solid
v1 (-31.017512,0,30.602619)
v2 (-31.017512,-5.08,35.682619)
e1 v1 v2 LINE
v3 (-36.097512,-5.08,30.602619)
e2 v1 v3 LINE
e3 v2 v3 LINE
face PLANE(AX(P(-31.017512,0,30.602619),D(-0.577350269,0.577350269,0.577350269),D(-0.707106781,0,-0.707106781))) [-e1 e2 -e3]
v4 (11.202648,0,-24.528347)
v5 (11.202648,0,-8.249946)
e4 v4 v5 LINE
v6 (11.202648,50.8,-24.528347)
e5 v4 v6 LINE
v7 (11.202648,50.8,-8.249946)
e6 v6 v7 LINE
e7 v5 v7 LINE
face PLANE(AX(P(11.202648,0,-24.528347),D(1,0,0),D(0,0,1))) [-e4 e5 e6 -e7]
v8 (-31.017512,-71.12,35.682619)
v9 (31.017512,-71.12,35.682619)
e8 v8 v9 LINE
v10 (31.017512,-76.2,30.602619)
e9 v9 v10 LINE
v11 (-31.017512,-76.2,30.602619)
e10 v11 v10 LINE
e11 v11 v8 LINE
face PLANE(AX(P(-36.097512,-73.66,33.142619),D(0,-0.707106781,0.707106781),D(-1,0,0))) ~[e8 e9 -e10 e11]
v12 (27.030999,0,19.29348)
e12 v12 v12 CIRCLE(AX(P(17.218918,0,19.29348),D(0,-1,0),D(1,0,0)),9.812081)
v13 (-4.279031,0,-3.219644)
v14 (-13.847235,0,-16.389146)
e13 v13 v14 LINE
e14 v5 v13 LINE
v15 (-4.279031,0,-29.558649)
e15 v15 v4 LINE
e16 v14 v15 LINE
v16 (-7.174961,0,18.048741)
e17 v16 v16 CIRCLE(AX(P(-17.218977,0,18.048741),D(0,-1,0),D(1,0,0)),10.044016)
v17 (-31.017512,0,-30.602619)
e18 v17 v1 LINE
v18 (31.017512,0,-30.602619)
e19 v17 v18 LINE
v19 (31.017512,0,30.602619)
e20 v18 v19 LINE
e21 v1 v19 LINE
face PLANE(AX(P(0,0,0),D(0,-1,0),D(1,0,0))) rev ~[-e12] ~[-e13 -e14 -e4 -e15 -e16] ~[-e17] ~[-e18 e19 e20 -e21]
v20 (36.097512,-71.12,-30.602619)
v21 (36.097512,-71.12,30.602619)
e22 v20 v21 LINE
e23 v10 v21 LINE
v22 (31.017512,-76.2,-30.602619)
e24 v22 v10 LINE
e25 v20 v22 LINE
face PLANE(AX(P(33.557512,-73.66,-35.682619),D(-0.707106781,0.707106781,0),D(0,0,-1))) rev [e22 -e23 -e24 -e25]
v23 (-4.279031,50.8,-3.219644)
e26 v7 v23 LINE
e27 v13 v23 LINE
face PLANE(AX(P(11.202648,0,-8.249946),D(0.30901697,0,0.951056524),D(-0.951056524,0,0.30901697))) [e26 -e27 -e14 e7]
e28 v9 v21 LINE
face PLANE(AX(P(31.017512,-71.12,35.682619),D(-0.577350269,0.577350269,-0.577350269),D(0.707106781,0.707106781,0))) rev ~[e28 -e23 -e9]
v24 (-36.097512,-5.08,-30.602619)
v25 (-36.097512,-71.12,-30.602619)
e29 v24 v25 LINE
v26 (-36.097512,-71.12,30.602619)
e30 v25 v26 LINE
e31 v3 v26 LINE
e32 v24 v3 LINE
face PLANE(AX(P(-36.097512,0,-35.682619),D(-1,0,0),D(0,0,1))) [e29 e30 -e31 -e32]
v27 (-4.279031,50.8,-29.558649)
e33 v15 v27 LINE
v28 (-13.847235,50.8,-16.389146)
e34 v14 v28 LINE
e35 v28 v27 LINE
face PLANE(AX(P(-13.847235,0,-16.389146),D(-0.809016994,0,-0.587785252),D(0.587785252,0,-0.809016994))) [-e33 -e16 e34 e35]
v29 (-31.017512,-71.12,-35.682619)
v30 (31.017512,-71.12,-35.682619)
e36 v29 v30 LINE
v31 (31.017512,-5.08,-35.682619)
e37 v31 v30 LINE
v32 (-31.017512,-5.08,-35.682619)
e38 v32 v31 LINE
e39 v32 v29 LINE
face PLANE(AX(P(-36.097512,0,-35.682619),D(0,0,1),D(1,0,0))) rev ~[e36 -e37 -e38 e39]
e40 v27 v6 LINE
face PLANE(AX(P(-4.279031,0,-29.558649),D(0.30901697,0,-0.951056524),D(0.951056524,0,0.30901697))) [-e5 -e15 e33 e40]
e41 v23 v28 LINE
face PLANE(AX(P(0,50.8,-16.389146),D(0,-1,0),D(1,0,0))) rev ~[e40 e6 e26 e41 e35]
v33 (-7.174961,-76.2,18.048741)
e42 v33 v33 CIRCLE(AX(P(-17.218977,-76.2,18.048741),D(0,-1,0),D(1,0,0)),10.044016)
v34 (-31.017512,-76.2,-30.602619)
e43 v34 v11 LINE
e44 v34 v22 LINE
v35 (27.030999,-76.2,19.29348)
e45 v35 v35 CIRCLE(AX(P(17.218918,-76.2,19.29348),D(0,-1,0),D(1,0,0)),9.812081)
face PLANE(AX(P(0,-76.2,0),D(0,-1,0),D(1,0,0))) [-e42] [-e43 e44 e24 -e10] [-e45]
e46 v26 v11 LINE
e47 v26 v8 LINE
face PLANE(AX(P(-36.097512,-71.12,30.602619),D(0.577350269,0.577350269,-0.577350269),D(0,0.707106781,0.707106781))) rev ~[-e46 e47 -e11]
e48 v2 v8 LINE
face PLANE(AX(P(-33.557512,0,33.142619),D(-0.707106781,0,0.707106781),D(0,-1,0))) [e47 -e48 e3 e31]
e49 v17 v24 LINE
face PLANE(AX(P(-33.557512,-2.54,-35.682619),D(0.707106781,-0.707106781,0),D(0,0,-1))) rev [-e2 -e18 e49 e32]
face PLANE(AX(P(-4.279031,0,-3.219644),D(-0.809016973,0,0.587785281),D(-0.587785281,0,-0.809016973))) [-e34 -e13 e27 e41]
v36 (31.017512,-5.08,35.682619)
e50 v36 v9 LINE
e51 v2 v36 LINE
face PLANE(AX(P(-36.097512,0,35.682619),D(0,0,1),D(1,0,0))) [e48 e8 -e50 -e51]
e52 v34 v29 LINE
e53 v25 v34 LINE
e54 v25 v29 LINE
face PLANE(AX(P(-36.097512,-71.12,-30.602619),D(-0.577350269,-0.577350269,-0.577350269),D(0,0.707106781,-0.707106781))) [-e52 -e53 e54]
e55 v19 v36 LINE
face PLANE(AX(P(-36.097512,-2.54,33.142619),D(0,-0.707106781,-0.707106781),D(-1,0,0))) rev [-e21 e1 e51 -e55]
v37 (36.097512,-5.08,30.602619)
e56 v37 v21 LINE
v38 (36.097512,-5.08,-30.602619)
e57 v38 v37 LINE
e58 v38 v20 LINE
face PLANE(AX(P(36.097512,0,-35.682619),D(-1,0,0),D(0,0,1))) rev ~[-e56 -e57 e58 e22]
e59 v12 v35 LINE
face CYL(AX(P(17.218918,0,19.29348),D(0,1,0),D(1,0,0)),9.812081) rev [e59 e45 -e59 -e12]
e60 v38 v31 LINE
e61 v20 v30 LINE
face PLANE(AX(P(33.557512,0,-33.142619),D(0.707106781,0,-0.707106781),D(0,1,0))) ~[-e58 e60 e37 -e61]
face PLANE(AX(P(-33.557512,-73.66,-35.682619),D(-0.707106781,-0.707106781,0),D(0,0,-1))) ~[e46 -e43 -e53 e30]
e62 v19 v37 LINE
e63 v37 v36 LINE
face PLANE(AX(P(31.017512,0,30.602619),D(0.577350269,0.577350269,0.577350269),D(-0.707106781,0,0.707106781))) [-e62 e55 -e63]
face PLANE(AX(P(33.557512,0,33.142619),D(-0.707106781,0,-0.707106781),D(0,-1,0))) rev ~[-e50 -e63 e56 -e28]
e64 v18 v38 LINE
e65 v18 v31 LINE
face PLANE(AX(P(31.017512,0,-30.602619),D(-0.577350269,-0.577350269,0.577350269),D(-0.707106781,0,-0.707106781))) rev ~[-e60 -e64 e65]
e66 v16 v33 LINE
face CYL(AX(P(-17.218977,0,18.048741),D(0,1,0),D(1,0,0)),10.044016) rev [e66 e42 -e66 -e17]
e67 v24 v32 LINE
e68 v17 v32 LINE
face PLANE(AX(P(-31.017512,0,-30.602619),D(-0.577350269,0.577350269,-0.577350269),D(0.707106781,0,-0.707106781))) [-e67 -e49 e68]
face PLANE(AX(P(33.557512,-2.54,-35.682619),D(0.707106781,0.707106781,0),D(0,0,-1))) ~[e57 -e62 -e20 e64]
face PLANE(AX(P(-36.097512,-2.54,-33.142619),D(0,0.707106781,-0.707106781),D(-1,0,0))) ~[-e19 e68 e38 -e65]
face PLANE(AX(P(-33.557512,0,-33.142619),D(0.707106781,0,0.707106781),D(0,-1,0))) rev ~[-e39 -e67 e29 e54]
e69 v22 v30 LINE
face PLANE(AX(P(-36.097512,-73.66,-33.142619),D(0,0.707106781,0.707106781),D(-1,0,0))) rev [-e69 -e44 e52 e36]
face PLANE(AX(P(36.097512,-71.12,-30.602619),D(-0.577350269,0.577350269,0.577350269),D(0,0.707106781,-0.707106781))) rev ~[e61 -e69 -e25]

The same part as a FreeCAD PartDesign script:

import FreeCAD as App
import Part
import Sketcher

V = App.Vector
Q = App.Units.Quantity

doc = App.newDocument("Part")
params = doc.addObject("Spreadsheet::Sheet", "Params")
for row, (alias, value) in enumerate([
    ("pad1_length", "3 in"),
    ("chamfer_size", "0.2 in"),
    ("pocket1_length", "3 in"),
    ("pad2_length", "2 in"),
], start=1):
    params.set(f"A{row}", alias)
    params.set(f"B{row}", "=" + value)
    params.setAlias(f"B{row}", alias)

body = doc.addObject("PartDesign::Body", "Body")

sketch1 = doc.addObject("Sketcher::SketchObject", "Sketch")
body.addObject(sketch1)
sketch1.AttachmentSupport = (doc.XZ_Plane, [""])
sketch1.MapMode = "FlatFace"
sketch1.addGeometry(Part.LineSegment(V(-36.097512, 35.682619, 0), V(-36.097512, -35.682619, 0)), False)
sketch1.addGeometry(Part.LineSegment(V(-36.097512, -35.682619, 0), V(36.097512, -35.682619, 0)), False)
sketch1.addGeometry(Part.LineSegment(V(36.097512, -35.682619, 0), V(36.097512, 35.682619, 0)), False)
sketch1.addGeometry(Part.LineSegment(V(36.097512, 35.682619, 0), V(-36.097512, 35.682619, 0)), False)
sketch1.addConstraint(Sketcher.Constraint("Coincident", 0, 2, 1, 1))
sketch1.addConstraint(Sketcher.Constraint("Coincident", 1, 2, 2, 1))
sketch1.addConstraint(Sketcher.Constraint("Coincident", 2, 2, 3, 1))
sketch1.addConstraint(Sketcher.Constraint("Coincident", 3, 2, 0, 1))
sketch1.addConstraint(Sketcher.Constraint("Vertical", 0))
sketch1.addConstraint(Sketcher.Constraint("Horizontal", 1))
sketch1.addConstraint(Sketcher.Constraint("Vertical", 2))
sketch1.addConstraint(Sketcher.Constraint("Horizontal", 3))
sketch1.addConstraint(Sketcher.Constraint("Symmetric", 0, 2, 2, 2, -1, 1))
sketch1.addConstraint(Sketcher.Constraint("DistanceY", 0, 2, 0, 1, 71.365238))
sketch1.addConstraint(Sketcher.Constraint("DistanceX", 1, 1, 1, 2, 72.195024))
pad1 = doc.addObject("PartDesign::Pad", "Pad")
body.addObject(pad1)
pad1.Profile = sketch1
pad1.setExpression("Length", "Params.pad1_length")
doc.recompute()

chamfer = doc.addObject("PartDesign::Chamfer", "Chamfer")
body.addObject(chamfer)
chamfer.Base = (pad1, ["Edge1"])
chamfer.UseAllEdges = True
chamfer.setExpression("Size", "Params.chamfer_size")

sketch2 = doc.addObject("Sketcher::SketchObject", "Sketch001")
body.addObject(sketch2)
sketch2.AttachmentSupport = (doc.XZ_Plane, [""])
sketch2.MapMode = "FlatFace"
sketch2.addGeometry(Part.Circle(V(-17.218977, 18.048741, 0), V(0, 0, 1), 10.044016), False)
sketch2.addGeometry(Part.Circle(V(17.218918, 19.29348, 0), V(0, 0, 1), 9.812081), False)
sketch2.addConstraint(Sketcher.Constraint("Diameter", 0, 20.088032))
sketch2.addConstraint(Sketcher.Constraint("Diameter", 1, 19.624162))
sketch2.addConstraint(Sketcher.Constraint("DistanceY", -1, 1, 0, 3, 18.048741))
sketch2.addConstraint(Sketcher.Constraint("DistanceY", -1, 1, 1, 3, 19.29348))
sketch2.addConstraint(Sketcher.Constraint("DistanceX", 0, 3, -1, 1, 17.218977))
sketch2.addConstraint(Sketcher.Constraint("DistanceX", -1, 1, 1, 3, 17.218918))
pocket1 = doc.addObject("PartDesign::Pocket", "Pocket")
body.addObject(pocket1)
pocket1.Profile = sketch2
pocket1.setExpression("Length", "Params.pocket1_length")
pocket1.Reversed = True

sketch3 = doc.addObject("Sketcher::SketchObject", "Sketch002")
body.addObject(sketch3)
sketch3.AttachmentSupport = (doc.XZ_Plane, [""])
sketch3.MapMode = "FlatFace"
sketch3.addGeometry(Part.LineSegment(V(11.202648, -24.528347, 0), V(11.202648, -8.249946, 0)), False)
sketch3.addGeometry(Part.LineSegment(V(11.202648, -8.249946, 0), V(-4.279031, -3.219644, 0)), False)
sketch3.addGeometry(Part.LineSegment(V(-4.279031, -3.219644, 0), V(-13.847235, -16.389146, 0)), False)
sketch3.addGeometry(Part.LineSegment(V(-13.847235, -16.389146, 0), V(-4.279031, -29.558649, 0)), False)
sketch3.addGeometry(Part.LineSegment(V(-4.279031, -29.558649, 0), V(11.202648, -24.528347, 0)), False)
sketch3.addConstraint(Sketcher.Constraint("Coincident", 0, 2, 1, 1))
sketch3.addConstraint(Sketcher.Constraint("Coincident", 1, 2, 2, 1))
sketch3.addConstraint(Sketcher.Constraint("Coincident", 2, 2, 3, 1))
sketch3.addConstraint(Sketcher.Constraint("Coincident", 3, 2, 4, 1))
sketch3.addConstraint(Sketcher.Constraint("Coincident", 4, 2, 0, 1))
sketch3.addConstraint(Sketcher.Constraint("Vertical", 0))
sketch3.addConstraint(Sketcher.Constraint("Vertical", 1, 2, 3, 2))
sketch3.addConstraint(Sketcher.Constraint("Equal", 1, 2))
sketch3.addConstraint(Sketcher.Constraint("Equal", 2, 3))
sketch3.addConstraint(Sketcher.Constraint("Equal", 3, 4))
sketch3.addConstraint(Sketcher.Constraint("Angle", 1, Q("162.000001 deg")))
sketch3.addConstraint(Sketcher.Constraint("Angle", 2, Q("-126.000002 deg")))
sketch3.addConstraint(Sketcher.Constraint("DistanceY", 0, 1, 0, 2, 16.278401))
sketch3.addConstraint(Sketcher.Constraint("DistanceX", 1, 2, -1, 1, 4.279031))
sketch3.addConstraint(Sketcher.Constraint("DistanceY", 3, 2, -1, 1, 29.558649))
pad2 = doc.addObject("PartDesign::Pad", "Pad001")
body.addObject(pad2)
pad2.Profile = sketch3
pad2.setExpression("Length", "Params.pad2_length")
pad2.Reversed = True

doc.recompute()
